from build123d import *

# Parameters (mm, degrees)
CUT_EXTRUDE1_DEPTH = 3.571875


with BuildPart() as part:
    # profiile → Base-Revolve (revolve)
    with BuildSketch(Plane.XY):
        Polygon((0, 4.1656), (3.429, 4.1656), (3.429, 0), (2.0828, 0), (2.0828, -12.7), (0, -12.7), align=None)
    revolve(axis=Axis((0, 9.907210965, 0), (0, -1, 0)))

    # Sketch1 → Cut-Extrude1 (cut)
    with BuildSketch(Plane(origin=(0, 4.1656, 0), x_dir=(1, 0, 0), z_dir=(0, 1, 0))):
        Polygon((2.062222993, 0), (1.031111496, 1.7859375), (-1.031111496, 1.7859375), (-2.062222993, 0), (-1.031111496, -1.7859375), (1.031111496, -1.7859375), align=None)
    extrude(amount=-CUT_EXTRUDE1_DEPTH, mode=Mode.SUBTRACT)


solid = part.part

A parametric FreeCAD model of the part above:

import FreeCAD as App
import Part
import Sketcher
Q = App.Units.Quantity


def add_polygon(sketch, points):
    """Adds a closed chain of lines whose ends are joined by coincident constraints."""
    first, n = sketch.GeometryCount, len(points)
    for a, b in zip(points, points[1:] + points[:1]):
        sketch.addGeometry(Part.LineSegment(App.Vector(*a, 0), App.Vector(*b, 0)), False)
    for i in range(n):
        sketch.addConstraint(Sketcher.Constraint("Coincident", first + i, 2, first + (i + 1) % n, 1))

doc = App.newDocument("Part")
body = doc.addObject("PartDesign::Body", "Body")

sketch1 = doc.addObject("Sketcher::SketchObject", "Sketch")
body.addObject(sketch1)
sketch1.AttachmentSupport = (doc.XY_Plane, [""])
sketch1.MapMode = "FlatFace"
add_polygon(sketch1, [(3.429, 4.1656), (0, 4.1656), (0, -12.7), (2.0828, -12.7), (2.0828, 0), (3.429, 0)])
sketch1.addConstraint(Sketcher.Constraint("Horizontal", 0))
sketch1.addConstraint(Sketcher.Constraint("Vertical", 1))
sketch1.addConstraint(Sketcher.Constraint("Horizontal", 2))
sketch1.addConstraint(Sketcher.Constraint("Vertical", 3))
sketch1.addConstraint(Sketcher.Constraint("Horizontal", 4))
sketch1.addConstraint(Sketcher.Constraint("Vertical", 5))
sketch1.addConstraint(Sketcher.Constraint("PointOnObject", 0, 2, -2))
sketch1.addConstraint(Sketcher.Constraint("PointOnObject", 3, 2, -1))
sketch1.addConstraint(Sketcher.Constraint("DistanceY", 3, 1, 3, 2, Q("0.5 in")))
sketch1.addConstraint(Sketcher.Constraint("DistanceX", 0, 2, 0, 1, Q("0.135 in")))
sketch1.addConstraint(Sketcher.Constraint("DistanceX", 2, 1, 2, 2, Q("0.082 in")))
sketch1.addConstraint(Sketcher.Constraint("DistanceY", 1, 2, 1, 1, Q("0.664 in")))
revolution = doc.addObject("PartDesign::Revolution", "Revolution")
body.addObject(revolution)
revolution.Profile = sketch1
revolution.ReferenceAxis = (sketch1, ["V_Axis"])
revolution.Angle = 360

sketch2 = doc.addObject("Sketcher::SketchObject", "Sketch001")
body.addObject(sketch2)
sketch2.AttachmentSupport = (doc.XZ_Plane, [""])
sketch2.MapMode = "FlatFace"
sketch2.AttachmentOffset = App.Placement(App.Vector(0, 0, -0.164 * 25.4), App.Rotation())
add_polygon(sketch2, [(2.062223, 0), (1.031111, -1.785937), (-1.031111, -1.785937), (-2.062223, 0), (-1.031111, 1.785937), (1.031111, 1.785937)])
sketch2.addConstraint(Sketcher.Constraint("Horizontal", 1))
sketch2.addConstraint(Sketcher.Constraint("Horizontal", 4))
sketch2.addConstraint(Sketcher.Constraint("Symmetric", 0, 2, 3, 2, -1, 1))
sketch2.addConstraint(Sketcher.Constraint("Symmetric", 2, 2, 5, 2, -1, 1))
sketch2.addConstraint(Sketcher.Constraint("PointOnObject", 2, 2, -1))
sketch2.addConstraint(Sketcher.Constraint("Parallel", 2, 5))
sketch2.addConstraint(Sketcher.Constraint("Vertical", 1, 2, 3, 2))
sketch2.addConstraint(Sketcher.Constraint("Angle", 0, Q("-120 deg")))
sketch2.addConstraint(Sketcher.Constraint("DistanceY", 1, 2, 3, 2, Q("0.140625 in")))
sketch2.addConstraint(Sketcher.Constraint("DistanceX", 1, 2, 1, 1, Q("2.062223 mm")))
pocket1 = doc.addObject("PartDesign::Pocket", "Pocket")
body.addObject(pocket1)
pocket1.Profile = sketch2
pocket1.Length = Q("0.140625 in")
pocket1.Reversed = True

doc.recompute()
